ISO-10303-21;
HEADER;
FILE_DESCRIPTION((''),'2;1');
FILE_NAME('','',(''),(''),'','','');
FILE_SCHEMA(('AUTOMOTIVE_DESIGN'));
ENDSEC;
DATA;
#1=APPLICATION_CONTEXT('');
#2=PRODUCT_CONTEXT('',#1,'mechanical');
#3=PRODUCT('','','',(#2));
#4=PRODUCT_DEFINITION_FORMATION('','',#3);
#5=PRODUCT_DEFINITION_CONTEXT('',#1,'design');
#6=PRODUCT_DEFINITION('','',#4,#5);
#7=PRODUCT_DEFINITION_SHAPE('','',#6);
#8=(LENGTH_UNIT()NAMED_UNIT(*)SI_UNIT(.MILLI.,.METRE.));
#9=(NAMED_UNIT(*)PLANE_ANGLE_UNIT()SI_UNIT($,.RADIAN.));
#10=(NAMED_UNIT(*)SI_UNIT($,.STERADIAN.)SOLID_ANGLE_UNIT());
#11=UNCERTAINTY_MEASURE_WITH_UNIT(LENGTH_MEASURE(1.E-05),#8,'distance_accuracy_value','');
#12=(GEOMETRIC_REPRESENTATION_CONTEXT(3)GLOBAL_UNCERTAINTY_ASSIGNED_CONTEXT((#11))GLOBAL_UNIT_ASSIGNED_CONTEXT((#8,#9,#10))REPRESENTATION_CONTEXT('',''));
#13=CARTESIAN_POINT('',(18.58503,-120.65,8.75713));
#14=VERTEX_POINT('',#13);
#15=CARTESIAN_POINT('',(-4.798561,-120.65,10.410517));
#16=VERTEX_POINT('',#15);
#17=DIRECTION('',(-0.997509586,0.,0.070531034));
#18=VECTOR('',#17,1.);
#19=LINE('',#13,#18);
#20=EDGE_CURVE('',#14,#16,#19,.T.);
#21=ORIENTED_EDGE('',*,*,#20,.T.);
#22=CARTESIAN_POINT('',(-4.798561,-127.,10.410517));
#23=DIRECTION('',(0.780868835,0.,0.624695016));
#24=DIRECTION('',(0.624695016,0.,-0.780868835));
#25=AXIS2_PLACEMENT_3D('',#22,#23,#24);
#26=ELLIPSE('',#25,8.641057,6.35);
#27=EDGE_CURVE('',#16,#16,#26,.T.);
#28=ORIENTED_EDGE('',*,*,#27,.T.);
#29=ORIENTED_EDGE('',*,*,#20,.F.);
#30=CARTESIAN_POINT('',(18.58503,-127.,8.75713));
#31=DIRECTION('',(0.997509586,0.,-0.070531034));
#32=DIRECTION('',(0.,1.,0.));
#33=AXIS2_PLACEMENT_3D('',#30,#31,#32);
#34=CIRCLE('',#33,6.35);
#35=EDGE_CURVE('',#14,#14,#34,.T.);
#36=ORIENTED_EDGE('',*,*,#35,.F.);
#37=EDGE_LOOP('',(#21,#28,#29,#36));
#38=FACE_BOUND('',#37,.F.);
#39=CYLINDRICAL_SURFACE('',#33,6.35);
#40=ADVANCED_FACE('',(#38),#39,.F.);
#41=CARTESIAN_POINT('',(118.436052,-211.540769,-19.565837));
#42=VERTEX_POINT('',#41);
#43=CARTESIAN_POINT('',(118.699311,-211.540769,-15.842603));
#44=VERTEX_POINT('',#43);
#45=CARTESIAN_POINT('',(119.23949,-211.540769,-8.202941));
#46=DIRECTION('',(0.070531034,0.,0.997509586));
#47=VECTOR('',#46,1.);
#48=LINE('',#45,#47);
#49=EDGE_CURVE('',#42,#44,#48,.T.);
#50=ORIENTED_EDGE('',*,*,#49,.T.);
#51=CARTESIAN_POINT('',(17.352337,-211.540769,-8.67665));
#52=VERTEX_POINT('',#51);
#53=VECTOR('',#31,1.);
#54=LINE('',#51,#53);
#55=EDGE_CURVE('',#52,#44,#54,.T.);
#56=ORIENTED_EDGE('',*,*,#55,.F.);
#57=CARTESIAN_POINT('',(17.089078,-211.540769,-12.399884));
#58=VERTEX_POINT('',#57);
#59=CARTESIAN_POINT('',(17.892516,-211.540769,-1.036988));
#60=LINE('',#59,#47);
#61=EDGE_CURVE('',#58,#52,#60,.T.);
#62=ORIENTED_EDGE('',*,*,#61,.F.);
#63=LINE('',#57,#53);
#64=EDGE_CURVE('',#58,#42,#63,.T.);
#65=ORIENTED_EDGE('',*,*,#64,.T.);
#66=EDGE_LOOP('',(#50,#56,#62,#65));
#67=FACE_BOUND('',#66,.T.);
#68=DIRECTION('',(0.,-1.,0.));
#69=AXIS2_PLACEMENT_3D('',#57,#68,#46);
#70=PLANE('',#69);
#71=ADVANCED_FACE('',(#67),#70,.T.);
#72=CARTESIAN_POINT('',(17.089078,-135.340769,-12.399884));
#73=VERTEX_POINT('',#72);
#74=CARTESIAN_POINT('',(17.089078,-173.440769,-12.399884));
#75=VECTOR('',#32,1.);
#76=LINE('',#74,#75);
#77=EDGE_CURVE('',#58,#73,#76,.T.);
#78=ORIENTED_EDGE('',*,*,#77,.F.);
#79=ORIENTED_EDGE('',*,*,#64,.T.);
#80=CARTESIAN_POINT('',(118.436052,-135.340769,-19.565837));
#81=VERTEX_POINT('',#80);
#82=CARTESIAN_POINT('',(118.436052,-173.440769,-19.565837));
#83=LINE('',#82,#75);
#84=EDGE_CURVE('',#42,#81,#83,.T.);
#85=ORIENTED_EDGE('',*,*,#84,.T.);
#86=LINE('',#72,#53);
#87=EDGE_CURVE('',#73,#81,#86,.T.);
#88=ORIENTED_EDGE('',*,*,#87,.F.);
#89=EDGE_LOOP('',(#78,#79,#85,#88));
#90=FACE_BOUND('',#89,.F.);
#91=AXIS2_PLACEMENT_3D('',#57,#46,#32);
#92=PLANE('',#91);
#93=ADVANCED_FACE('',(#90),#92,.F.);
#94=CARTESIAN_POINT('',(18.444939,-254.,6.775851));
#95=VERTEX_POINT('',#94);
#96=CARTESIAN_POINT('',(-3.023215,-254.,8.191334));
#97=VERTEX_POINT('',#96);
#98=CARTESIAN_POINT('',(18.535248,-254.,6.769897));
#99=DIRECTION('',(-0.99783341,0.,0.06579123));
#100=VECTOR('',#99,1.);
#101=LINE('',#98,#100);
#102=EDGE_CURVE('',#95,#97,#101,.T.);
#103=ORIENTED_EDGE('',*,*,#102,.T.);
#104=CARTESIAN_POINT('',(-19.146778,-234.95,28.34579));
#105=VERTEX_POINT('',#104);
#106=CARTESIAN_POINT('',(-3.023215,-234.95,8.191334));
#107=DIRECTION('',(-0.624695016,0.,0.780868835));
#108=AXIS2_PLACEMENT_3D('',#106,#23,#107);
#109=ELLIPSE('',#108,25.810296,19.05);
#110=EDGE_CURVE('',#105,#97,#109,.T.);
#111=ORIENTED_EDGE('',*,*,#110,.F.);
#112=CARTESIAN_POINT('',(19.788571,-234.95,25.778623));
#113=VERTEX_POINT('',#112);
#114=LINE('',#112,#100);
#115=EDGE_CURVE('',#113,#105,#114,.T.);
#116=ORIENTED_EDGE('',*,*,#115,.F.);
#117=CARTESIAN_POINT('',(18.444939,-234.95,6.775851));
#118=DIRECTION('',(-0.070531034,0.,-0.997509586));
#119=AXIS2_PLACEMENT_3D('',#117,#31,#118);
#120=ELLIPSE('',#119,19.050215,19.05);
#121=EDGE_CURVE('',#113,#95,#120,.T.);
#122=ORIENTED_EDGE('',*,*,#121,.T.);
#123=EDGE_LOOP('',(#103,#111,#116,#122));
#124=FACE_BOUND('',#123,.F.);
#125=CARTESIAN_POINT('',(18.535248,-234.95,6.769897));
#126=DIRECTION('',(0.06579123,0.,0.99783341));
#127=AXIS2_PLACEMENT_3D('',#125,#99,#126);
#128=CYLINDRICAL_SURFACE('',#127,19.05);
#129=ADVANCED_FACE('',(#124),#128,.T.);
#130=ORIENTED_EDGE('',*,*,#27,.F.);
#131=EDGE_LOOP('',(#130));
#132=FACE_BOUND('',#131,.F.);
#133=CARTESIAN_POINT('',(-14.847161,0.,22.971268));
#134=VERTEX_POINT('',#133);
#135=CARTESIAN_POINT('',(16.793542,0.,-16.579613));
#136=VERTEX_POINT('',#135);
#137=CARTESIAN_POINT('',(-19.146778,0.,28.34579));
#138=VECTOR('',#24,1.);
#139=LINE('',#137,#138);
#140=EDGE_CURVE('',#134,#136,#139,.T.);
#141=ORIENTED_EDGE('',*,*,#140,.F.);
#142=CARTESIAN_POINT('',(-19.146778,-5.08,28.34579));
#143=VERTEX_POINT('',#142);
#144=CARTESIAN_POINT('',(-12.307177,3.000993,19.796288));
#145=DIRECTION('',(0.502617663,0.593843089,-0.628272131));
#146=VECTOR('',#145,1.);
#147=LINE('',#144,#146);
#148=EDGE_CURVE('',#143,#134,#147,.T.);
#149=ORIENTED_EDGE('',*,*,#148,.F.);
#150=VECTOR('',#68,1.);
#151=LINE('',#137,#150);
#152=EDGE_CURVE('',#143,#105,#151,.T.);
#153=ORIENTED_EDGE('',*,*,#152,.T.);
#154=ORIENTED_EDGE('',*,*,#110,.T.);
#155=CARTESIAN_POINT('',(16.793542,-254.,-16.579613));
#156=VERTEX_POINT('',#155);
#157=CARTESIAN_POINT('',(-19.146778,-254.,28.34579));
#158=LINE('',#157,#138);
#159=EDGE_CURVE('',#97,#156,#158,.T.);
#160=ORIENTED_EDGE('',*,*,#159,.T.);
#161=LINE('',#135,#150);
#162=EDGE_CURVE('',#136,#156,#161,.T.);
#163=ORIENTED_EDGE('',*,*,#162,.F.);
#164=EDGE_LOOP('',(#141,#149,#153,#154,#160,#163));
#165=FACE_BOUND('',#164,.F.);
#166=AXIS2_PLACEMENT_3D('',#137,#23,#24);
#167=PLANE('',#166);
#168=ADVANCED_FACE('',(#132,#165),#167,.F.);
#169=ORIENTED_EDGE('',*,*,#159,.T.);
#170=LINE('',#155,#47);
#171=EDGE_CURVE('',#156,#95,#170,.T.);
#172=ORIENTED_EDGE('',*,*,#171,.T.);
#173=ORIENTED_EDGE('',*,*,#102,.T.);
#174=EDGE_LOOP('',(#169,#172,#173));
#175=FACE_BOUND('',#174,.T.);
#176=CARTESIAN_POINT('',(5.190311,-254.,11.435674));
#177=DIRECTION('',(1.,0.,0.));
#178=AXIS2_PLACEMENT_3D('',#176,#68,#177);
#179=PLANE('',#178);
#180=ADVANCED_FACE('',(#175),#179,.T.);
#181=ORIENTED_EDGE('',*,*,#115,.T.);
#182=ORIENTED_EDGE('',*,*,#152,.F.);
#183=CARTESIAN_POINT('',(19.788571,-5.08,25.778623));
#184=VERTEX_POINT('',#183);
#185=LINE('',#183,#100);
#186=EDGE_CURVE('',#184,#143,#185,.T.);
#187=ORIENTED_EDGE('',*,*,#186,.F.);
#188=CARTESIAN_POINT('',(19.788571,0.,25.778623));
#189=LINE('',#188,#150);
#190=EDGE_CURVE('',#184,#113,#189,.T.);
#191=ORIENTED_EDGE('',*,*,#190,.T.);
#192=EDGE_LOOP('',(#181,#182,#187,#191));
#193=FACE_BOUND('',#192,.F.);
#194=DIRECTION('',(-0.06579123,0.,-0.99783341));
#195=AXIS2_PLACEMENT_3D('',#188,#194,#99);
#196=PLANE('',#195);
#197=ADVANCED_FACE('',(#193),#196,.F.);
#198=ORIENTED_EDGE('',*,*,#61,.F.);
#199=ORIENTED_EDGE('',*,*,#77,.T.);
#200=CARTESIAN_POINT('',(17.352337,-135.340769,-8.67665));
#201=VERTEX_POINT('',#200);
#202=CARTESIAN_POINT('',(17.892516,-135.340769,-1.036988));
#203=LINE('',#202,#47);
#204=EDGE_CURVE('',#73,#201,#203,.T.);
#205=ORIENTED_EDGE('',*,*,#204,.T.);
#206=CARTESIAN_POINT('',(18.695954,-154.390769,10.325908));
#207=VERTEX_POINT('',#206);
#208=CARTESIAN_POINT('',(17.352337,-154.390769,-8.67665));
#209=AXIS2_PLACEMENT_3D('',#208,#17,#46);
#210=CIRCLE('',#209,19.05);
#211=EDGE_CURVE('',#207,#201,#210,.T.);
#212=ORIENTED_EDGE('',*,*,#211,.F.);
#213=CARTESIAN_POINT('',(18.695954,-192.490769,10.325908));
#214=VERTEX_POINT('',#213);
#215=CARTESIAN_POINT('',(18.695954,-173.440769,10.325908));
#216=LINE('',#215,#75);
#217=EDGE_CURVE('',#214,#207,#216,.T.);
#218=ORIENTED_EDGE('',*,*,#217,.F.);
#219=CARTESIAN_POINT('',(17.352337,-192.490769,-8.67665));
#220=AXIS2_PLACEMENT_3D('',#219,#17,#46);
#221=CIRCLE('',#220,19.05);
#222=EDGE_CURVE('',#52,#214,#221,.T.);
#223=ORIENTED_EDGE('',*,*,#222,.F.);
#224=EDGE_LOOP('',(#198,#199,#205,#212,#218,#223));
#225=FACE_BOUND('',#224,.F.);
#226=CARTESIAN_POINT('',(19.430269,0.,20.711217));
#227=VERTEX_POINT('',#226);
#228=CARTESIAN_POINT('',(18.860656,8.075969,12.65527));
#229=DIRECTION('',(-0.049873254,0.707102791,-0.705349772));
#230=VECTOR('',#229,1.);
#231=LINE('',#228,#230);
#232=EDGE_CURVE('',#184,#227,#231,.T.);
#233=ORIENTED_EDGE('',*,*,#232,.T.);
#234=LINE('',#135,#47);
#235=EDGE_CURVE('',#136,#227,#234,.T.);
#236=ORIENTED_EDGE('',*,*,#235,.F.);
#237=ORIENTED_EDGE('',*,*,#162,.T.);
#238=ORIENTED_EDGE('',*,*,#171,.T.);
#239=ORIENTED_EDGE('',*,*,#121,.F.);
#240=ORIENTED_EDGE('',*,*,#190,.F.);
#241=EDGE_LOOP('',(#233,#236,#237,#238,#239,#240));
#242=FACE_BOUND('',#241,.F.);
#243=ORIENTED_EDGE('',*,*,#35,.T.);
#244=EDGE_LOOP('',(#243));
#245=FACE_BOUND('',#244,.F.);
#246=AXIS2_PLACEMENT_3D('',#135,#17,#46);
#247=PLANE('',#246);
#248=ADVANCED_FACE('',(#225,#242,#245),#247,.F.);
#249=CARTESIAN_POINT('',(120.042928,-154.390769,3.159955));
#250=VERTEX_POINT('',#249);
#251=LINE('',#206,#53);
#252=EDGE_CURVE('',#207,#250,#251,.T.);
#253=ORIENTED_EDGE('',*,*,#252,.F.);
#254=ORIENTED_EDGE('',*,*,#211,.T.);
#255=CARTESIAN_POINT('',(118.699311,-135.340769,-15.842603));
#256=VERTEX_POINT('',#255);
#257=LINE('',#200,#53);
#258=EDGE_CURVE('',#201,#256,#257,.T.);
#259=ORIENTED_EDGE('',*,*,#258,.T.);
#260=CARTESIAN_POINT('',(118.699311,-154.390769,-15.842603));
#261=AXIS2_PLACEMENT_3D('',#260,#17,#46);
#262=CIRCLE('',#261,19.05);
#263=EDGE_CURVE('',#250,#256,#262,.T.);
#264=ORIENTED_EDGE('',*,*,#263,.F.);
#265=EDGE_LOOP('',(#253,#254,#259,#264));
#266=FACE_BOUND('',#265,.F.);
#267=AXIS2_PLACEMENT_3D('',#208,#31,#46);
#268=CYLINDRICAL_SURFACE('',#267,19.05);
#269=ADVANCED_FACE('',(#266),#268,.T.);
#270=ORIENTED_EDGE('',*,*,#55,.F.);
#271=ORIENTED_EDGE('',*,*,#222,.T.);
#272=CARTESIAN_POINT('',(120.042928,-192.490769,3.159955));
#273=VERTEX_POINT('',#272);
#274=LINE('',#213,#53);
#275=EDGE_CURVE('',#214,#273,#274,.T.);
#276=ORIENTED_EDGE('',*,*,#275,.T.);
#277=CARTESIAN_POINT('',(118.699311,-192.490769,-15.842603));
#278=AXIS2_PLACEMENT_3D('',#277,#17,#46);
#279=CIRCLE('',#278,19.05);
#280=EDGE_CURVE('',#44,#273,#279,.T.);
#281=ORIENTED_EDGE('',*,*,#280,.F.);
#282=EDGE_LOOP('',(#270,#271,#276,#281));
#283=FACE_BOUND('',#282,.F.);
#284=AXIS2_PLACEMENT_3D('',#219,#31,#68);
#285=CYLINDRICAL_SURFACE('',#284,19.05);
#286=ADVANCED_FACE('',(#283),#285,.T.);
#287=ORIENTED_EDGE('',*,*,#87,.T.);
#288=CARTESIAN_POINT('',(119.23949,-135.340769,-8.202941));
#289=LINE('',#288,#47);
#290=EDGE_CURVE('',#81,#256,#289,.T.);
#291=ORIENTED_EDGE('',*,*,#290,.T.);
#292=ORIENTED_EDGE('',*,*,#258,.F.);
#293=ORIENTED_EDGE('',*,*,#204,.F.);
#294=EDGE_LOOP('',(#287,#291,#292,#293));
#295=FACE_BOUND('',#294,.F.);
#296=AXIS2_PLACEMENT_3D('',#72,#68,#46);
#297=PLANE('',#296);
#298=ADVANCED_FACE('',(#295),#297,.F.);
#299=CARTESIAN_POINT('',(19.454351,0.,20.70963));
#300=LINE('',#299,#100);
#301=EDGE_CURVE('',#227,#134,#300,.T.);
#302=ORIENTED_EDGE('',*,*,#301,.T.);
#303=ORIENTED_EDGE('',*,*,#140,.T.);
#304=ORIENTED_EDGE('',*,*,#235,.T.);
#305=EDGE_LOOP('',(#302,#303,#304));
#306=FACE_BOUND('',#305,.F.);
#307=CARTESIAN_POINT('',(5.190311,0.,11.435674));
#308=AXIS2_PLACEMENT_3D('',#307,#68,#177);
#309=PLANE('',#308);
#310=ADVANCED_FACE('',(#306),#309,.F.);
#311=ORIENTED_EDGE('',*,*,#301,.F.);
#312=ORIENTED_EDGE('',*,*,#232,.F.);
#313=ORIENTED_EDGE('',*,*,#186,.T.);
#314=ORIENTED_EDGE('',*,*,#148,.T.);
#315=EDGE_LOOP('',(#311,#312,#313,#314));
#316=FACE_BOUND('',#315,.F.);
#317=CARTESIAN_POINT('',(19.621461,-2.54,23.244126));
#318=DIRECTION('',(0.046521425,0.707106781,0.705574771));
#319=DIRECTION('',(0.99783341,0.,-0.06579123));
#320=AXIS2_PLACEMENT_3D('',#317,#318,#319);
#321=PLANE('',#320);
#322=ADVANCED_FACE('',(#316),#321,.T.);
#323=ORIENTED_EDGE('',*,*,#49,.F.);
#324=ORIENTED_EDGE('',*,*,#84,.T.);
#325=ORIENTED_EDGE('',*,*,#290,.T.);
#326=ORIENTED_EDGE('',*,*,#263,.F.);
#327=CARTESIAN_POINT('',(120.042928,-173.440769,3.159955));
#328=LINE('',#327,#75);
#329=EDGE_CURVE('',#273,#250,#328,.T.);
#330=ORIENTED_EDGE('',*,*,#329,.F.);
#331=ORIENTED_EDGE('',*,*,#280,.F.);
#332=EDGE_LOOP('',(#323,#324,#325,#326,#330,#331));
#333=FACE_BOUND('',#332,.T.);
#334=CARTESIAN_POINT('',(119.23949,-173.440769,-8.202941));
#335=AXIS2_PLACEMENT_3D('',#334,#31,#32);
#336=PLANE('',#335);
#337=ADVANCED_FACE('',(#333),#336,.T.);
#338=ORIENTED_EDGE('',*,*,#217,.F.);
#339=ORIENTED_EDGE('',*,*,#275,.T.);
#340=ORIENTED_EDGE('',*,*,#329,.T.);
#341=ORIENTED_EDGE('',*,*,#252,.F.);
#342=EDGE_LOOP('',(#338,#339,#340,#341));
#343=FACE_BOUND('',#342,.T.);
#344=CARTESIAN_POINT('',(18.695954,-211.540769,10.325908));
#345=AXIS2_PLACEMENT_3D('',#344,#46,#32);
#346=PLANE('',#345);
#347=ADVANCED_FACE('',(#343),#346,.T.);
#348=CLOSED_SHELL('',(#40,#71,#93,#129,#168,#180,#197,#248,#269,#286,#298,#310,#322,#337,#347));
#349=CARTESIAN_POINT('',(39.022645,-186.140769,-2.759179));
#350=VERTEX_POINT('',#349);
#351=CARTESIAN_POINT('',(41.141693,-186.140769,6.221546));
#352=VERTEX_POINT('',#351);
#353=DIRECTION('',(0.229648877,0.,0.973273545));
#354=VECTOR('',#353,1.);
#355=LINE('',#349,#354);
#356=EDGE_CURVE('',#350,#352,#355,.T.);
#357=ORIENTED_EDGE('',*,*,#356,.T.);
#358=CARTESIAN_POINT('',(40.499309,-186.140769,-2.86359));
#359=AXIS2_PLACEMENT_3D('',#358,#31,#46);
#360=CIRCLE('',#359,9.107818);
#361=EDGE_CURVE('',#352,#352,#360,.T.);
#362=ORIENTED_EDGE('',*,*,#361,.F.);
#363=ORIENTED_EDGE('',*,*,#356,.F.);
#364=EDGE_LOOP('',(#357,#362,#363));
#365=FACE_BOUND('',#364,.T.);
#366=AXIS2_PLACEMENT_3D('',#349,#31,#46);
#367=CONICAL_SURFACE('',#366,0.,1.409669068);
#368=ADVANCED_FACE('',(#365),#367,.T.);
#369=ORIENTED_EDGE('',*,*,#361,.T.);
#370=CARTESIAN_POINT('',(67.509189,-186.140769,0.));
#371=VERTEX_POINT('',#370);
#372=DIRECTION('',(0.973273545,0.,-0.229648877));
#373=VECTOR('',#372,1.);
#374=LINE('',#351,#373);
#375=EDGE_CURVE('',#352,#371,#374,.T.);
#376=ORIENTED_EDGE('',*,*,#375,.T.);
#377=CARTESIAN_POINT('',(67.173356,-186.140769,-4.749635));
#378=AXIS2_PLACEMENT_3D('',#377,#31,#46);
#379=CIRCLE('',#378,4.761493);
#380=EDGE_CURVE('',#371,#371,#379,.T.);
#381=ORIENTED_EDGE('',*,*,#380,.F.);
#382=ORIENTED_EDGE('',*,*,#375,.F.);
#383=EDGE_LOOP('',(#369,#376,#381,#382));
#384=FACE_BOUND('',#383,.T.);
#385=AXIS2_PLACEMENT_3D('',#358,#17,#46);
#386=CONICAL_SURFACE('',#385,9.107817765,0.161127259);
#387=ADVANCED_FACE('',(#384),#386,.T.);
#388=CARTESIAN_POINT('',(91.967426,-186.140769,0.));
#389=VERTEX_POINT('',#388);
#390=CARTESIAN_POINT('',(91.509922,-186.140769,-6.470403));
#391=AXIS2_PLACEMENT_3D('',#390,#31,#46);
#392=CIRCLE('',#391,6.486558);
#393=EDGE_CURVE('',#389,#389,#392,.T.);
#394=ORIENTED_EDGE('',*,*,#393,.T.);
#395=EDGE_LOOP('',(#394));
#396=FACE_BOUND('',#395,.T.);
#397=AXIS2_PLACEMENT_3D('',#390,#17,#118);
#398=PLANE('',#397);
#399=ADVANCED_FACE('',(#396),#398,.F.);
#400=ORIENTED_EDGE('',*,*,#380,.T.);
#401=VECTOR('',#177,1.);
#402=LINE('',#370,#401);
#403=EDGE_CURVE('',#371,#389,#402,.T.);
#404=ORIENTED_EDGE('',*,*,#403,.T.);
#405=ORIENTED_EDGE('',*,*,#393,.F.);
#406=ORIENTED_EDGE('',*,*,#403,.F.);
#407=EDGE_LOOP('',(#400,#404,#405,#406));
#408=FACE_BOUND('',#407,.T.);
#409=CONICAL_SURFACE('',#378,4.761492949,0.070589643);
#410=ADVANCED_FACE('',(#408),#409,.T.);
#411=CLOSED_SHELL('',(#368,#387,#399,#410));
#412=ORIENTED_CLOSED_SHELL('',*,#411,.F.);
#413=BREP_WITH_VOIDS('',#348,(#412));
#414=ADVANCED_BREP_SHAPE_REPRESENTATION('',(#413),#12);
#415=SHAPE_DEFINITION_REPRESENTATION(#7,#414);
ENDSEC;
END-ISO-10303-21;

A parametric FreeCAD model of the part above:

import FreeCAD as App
import Part
import Sketcher

V = App.Vector
Q = App.Units.Quantity


def edges_at(feature, points):
    """Names of the edges that pass closest to the given points."""
    edges = feature.Shape.Edges
    near = lambda p: min(range(len(edges)), key=lambda i: edges[i].distToShape(Part.Vertex(*p))[0])
    return sorted({f"Edge{near(p) + 1}" for p in points})

doc = App.newDocument("Part")
body = doc.addObject("PartDesign::Body", "Body")

# Sketch on XZ plane
sketch1 = body.newObject("Sketcher::SketchObject", "Sketch")
sketch1.AttachmentSupport = (doc.getObject("XZ_Plane"), [""])
sketch1.MapMode = "FlatFace"
sketch1.addGeometry([
    Part.LineSegment(V(-19, 28, 0), V(17, -17, 0)),
    Part.LineSegment(V(17, -17, 0), V(20, 26, 0)),
    Part.LineSegment(V(20, 26, 0), V(-19, 28, 0)),
], False)
sketch1.addConstraint([
    Sketcher.Constraint("Coincident", 0, 2, 1, 1),
    Sketcher.Constraint("Coincident", 1, 2, 2, 1),
    Sketcher.Constraint("Coincident", 2, 2, 0, 1),
    Sketcher.Constraint("Distance", 1, 42.463989),
    Sketcher.Constraint("Distance", 2, 39.019888),
    Sketcher.Constraint("DistanceX", -1, 1, 0, 2, 16.793542),
    Sketcher.Constraint("DistanceX", -1, 1, 1, 2, 19.788571),
    Sketcher.Constraint("DistanceY", -1, 1, 2, 2, 28.34579),
    Sketcher.Constraint("DistanceX", 2, 2, 1, 2, 38.935348),
])
pad1 = body.newObject("PartDesign::Pad", "Pad")
pad1.Profile = sketch1
pad1.Length = Q("10 in")

# Sketch on an angled plane
sketch2 = body.newObject("Sketcher::SketchObject", "Sketch001")
sketch2.Placement = App.Placement(V(17.876465, 0, -1.263993), App.Rotation(V(0, 1, 0), V(0.070531034, 0, 0.997509586), V(0.997509586, 0, -0.070531034), "ZXY"))
sketch2.addGeometry(Part.Circle(V(-127, 10, 0), V(0, 0, 1), 6), False)
sketch2.addConstraint([
    Sketcher.Constraint("Diameter", 0, Q("0.5 in")),
    Sketcher.Constraint("DistanceX", 0, 3, -1, 1, Q("5 in")),
    Sketcher.Constraint("DistanceY", -1, 1, 0, 3, 10.046143),
])
pocket1 = body.newObject("PartDesign::Pocket", "Pocket")
pocket1.Profile = sketch2
pocket1.Type = "ThroughAll"

# Sketch on an angled plane
sketch3 = body.newObject("Sketcher::SketchObject", "Sketch002")
sketch3.Placement = App.Placement(V(17.876465, 0, -1.263993), App.Rotation(V(0, 1, 0), V(0.070531034, 0, 0.997509586), V(0.997509586, 0, -0.070531034), "ZXY"))
sketch3.addGeometry([
    Part.LineSegment(V(-212, 12, 0), V(-212, -11, 0)),
    Part.LineSegment(V(-212, -11, 0), V(-135, -11, 0)),
    Part.LineSegment(V(-135, -11, 0), V(-135, 12, 0)),
    Part.LineSegment(V(-135, 12, 0), V(-212, 12, 0)),
], False)
sketch3.addConstraint([
    Sketcher.Constraint("Coincident", 0, 2, 1, 1),
    Sketcher.Constraint("Coincident", 1, 2, 2, 1),
    Sketcher.Constraint("Coincident", 2, 2, 3, 1),
    Sketcher.Constraint("Coincident", 3, 2, 0, 1),
    Sketcher.Constraint("Vertical", 0),
    Sketcher.Constraint("Horizontal", 1),
    Sketcher.Constraint("Vertical", 2),
    Sketcher.Constraint("Horizontal", 3),
    Sketcher.Constraint("DistanceX", 1, 1, 1, 2, Q("3 in")),
    Sketcher.Constraint("DistanceY", 0, 2, 0, 1, 22.78253),
    Sketcher.Constraint("DistanceX", 0, 2, -1, 1, 211.540769),
    Sketcher.Constraint("DistanceY", 0, 2, -1, 1, 11.163693),
])
pad2 = body.newObject("PartDesign::Pad", "Pad001")
pad2.Profile = sketch3
pad2.Length = Q("4 in")

# Sketch on XZ plane
sketch4 = body.newObject("Sketcher::SketchObject", "Sketch003")
sketch4.AttachmentSupport = (doc.getObject("XZ_Plane"), [""])
sketch4.MapMode = "FlatFace"
sketch4.AttachmentOffset = App.Placement(V(0, 0, 186.140769), App.Rotation())
sketch4.addGeometry([
    Part.LineSegment(V(92, 0, 0), V(92, -6, 0)),  # 0
    Part.LineSegment(V(92, -6, 0), V(39, -3, 0)),  # 1
    Part.LineSegment(V(39, -3, 0), V(41, 6, 0)),  # 2
    Part.LineSegment(V(41, 6, 0), V(68, 0, 0)),  # 3
    Part.LineSegment(V(68, 0, 0), V(92, 0, 0)),  # 4
], False)
sketch4.addGeometry(Part.LineSegment(V(39, -3, 0), V(92, -6, 0)), True)  # axis
sketch4.addConstraint([
    Sketcher.Constraint("Coincident", 0, 2, 1, 1),
    Sketcher.Constraint("Coincident", 1, 2, 2, 1),
    Sketcher.Constraint("Coincident", 2, 2, 3, 1),
    Sketcher.Constraint("Coincident", 3, 2, 4, 1),
    Sketcher.Constraint("Coincident", 4, 2, 0, 1),
    Sketcher.Constraint("Horizontal", 4),
    Sketcher.Constraint("Coincident", 5, 1, 1, 2),
    Sketcher.Constraint("Coincident", 5, 2, 0, 2),
    Sketcher.Constraint("PointOnObject", 3, 2, -1),
    Sketcher.Constraint("Perpendicular", 0, 1),
    Sketcher.Constraint("Perpendicular", 2, 3),
    Sketcher.Constraint("Distance", 1, 52.618319),
    Sketcher.Constraint("Distance", 2, 9.227339),
    Sketcher.Constraint("Distance", 3, 27.091558),
    Sketcher.Constraint("DistanceX", 4, 1, 4, 2, 24.458237),
    Sketcher.Constraint("DistanceY", 1, 2, -1, 1, 2.759179),
    Sketcher.Constraint("DistanceX", -1, 1, 3, 2, 67.509189),
])
groove = body.newObject("PartDesign::Groove", "Groove")
groove.Profile = sketch4
groove.ReferenceAxis = (sketch4, ["Axis0"])
groove.Angle = 360
doc.recompute()

fillet = body.newObject("PartDesign::Fillet", "Fillet")
fillet.Base = (groove, edges_at(groove, [(69.369, -135.341, 6.743), (69.369, -211.541, 6.743), (0.321, -254, 27.062)]))
fillet.Radius = Q("0.75 in")
doc.recompute()

chamfer = body.newObject("PartDesign::Chamfer", "Chamfer")
chamfer.Base = (fillet, edges_at(fillet, [(0.321, 0, 27.062)]))
chamfer.Size = Q("0.2 in")

doc.recompute()
